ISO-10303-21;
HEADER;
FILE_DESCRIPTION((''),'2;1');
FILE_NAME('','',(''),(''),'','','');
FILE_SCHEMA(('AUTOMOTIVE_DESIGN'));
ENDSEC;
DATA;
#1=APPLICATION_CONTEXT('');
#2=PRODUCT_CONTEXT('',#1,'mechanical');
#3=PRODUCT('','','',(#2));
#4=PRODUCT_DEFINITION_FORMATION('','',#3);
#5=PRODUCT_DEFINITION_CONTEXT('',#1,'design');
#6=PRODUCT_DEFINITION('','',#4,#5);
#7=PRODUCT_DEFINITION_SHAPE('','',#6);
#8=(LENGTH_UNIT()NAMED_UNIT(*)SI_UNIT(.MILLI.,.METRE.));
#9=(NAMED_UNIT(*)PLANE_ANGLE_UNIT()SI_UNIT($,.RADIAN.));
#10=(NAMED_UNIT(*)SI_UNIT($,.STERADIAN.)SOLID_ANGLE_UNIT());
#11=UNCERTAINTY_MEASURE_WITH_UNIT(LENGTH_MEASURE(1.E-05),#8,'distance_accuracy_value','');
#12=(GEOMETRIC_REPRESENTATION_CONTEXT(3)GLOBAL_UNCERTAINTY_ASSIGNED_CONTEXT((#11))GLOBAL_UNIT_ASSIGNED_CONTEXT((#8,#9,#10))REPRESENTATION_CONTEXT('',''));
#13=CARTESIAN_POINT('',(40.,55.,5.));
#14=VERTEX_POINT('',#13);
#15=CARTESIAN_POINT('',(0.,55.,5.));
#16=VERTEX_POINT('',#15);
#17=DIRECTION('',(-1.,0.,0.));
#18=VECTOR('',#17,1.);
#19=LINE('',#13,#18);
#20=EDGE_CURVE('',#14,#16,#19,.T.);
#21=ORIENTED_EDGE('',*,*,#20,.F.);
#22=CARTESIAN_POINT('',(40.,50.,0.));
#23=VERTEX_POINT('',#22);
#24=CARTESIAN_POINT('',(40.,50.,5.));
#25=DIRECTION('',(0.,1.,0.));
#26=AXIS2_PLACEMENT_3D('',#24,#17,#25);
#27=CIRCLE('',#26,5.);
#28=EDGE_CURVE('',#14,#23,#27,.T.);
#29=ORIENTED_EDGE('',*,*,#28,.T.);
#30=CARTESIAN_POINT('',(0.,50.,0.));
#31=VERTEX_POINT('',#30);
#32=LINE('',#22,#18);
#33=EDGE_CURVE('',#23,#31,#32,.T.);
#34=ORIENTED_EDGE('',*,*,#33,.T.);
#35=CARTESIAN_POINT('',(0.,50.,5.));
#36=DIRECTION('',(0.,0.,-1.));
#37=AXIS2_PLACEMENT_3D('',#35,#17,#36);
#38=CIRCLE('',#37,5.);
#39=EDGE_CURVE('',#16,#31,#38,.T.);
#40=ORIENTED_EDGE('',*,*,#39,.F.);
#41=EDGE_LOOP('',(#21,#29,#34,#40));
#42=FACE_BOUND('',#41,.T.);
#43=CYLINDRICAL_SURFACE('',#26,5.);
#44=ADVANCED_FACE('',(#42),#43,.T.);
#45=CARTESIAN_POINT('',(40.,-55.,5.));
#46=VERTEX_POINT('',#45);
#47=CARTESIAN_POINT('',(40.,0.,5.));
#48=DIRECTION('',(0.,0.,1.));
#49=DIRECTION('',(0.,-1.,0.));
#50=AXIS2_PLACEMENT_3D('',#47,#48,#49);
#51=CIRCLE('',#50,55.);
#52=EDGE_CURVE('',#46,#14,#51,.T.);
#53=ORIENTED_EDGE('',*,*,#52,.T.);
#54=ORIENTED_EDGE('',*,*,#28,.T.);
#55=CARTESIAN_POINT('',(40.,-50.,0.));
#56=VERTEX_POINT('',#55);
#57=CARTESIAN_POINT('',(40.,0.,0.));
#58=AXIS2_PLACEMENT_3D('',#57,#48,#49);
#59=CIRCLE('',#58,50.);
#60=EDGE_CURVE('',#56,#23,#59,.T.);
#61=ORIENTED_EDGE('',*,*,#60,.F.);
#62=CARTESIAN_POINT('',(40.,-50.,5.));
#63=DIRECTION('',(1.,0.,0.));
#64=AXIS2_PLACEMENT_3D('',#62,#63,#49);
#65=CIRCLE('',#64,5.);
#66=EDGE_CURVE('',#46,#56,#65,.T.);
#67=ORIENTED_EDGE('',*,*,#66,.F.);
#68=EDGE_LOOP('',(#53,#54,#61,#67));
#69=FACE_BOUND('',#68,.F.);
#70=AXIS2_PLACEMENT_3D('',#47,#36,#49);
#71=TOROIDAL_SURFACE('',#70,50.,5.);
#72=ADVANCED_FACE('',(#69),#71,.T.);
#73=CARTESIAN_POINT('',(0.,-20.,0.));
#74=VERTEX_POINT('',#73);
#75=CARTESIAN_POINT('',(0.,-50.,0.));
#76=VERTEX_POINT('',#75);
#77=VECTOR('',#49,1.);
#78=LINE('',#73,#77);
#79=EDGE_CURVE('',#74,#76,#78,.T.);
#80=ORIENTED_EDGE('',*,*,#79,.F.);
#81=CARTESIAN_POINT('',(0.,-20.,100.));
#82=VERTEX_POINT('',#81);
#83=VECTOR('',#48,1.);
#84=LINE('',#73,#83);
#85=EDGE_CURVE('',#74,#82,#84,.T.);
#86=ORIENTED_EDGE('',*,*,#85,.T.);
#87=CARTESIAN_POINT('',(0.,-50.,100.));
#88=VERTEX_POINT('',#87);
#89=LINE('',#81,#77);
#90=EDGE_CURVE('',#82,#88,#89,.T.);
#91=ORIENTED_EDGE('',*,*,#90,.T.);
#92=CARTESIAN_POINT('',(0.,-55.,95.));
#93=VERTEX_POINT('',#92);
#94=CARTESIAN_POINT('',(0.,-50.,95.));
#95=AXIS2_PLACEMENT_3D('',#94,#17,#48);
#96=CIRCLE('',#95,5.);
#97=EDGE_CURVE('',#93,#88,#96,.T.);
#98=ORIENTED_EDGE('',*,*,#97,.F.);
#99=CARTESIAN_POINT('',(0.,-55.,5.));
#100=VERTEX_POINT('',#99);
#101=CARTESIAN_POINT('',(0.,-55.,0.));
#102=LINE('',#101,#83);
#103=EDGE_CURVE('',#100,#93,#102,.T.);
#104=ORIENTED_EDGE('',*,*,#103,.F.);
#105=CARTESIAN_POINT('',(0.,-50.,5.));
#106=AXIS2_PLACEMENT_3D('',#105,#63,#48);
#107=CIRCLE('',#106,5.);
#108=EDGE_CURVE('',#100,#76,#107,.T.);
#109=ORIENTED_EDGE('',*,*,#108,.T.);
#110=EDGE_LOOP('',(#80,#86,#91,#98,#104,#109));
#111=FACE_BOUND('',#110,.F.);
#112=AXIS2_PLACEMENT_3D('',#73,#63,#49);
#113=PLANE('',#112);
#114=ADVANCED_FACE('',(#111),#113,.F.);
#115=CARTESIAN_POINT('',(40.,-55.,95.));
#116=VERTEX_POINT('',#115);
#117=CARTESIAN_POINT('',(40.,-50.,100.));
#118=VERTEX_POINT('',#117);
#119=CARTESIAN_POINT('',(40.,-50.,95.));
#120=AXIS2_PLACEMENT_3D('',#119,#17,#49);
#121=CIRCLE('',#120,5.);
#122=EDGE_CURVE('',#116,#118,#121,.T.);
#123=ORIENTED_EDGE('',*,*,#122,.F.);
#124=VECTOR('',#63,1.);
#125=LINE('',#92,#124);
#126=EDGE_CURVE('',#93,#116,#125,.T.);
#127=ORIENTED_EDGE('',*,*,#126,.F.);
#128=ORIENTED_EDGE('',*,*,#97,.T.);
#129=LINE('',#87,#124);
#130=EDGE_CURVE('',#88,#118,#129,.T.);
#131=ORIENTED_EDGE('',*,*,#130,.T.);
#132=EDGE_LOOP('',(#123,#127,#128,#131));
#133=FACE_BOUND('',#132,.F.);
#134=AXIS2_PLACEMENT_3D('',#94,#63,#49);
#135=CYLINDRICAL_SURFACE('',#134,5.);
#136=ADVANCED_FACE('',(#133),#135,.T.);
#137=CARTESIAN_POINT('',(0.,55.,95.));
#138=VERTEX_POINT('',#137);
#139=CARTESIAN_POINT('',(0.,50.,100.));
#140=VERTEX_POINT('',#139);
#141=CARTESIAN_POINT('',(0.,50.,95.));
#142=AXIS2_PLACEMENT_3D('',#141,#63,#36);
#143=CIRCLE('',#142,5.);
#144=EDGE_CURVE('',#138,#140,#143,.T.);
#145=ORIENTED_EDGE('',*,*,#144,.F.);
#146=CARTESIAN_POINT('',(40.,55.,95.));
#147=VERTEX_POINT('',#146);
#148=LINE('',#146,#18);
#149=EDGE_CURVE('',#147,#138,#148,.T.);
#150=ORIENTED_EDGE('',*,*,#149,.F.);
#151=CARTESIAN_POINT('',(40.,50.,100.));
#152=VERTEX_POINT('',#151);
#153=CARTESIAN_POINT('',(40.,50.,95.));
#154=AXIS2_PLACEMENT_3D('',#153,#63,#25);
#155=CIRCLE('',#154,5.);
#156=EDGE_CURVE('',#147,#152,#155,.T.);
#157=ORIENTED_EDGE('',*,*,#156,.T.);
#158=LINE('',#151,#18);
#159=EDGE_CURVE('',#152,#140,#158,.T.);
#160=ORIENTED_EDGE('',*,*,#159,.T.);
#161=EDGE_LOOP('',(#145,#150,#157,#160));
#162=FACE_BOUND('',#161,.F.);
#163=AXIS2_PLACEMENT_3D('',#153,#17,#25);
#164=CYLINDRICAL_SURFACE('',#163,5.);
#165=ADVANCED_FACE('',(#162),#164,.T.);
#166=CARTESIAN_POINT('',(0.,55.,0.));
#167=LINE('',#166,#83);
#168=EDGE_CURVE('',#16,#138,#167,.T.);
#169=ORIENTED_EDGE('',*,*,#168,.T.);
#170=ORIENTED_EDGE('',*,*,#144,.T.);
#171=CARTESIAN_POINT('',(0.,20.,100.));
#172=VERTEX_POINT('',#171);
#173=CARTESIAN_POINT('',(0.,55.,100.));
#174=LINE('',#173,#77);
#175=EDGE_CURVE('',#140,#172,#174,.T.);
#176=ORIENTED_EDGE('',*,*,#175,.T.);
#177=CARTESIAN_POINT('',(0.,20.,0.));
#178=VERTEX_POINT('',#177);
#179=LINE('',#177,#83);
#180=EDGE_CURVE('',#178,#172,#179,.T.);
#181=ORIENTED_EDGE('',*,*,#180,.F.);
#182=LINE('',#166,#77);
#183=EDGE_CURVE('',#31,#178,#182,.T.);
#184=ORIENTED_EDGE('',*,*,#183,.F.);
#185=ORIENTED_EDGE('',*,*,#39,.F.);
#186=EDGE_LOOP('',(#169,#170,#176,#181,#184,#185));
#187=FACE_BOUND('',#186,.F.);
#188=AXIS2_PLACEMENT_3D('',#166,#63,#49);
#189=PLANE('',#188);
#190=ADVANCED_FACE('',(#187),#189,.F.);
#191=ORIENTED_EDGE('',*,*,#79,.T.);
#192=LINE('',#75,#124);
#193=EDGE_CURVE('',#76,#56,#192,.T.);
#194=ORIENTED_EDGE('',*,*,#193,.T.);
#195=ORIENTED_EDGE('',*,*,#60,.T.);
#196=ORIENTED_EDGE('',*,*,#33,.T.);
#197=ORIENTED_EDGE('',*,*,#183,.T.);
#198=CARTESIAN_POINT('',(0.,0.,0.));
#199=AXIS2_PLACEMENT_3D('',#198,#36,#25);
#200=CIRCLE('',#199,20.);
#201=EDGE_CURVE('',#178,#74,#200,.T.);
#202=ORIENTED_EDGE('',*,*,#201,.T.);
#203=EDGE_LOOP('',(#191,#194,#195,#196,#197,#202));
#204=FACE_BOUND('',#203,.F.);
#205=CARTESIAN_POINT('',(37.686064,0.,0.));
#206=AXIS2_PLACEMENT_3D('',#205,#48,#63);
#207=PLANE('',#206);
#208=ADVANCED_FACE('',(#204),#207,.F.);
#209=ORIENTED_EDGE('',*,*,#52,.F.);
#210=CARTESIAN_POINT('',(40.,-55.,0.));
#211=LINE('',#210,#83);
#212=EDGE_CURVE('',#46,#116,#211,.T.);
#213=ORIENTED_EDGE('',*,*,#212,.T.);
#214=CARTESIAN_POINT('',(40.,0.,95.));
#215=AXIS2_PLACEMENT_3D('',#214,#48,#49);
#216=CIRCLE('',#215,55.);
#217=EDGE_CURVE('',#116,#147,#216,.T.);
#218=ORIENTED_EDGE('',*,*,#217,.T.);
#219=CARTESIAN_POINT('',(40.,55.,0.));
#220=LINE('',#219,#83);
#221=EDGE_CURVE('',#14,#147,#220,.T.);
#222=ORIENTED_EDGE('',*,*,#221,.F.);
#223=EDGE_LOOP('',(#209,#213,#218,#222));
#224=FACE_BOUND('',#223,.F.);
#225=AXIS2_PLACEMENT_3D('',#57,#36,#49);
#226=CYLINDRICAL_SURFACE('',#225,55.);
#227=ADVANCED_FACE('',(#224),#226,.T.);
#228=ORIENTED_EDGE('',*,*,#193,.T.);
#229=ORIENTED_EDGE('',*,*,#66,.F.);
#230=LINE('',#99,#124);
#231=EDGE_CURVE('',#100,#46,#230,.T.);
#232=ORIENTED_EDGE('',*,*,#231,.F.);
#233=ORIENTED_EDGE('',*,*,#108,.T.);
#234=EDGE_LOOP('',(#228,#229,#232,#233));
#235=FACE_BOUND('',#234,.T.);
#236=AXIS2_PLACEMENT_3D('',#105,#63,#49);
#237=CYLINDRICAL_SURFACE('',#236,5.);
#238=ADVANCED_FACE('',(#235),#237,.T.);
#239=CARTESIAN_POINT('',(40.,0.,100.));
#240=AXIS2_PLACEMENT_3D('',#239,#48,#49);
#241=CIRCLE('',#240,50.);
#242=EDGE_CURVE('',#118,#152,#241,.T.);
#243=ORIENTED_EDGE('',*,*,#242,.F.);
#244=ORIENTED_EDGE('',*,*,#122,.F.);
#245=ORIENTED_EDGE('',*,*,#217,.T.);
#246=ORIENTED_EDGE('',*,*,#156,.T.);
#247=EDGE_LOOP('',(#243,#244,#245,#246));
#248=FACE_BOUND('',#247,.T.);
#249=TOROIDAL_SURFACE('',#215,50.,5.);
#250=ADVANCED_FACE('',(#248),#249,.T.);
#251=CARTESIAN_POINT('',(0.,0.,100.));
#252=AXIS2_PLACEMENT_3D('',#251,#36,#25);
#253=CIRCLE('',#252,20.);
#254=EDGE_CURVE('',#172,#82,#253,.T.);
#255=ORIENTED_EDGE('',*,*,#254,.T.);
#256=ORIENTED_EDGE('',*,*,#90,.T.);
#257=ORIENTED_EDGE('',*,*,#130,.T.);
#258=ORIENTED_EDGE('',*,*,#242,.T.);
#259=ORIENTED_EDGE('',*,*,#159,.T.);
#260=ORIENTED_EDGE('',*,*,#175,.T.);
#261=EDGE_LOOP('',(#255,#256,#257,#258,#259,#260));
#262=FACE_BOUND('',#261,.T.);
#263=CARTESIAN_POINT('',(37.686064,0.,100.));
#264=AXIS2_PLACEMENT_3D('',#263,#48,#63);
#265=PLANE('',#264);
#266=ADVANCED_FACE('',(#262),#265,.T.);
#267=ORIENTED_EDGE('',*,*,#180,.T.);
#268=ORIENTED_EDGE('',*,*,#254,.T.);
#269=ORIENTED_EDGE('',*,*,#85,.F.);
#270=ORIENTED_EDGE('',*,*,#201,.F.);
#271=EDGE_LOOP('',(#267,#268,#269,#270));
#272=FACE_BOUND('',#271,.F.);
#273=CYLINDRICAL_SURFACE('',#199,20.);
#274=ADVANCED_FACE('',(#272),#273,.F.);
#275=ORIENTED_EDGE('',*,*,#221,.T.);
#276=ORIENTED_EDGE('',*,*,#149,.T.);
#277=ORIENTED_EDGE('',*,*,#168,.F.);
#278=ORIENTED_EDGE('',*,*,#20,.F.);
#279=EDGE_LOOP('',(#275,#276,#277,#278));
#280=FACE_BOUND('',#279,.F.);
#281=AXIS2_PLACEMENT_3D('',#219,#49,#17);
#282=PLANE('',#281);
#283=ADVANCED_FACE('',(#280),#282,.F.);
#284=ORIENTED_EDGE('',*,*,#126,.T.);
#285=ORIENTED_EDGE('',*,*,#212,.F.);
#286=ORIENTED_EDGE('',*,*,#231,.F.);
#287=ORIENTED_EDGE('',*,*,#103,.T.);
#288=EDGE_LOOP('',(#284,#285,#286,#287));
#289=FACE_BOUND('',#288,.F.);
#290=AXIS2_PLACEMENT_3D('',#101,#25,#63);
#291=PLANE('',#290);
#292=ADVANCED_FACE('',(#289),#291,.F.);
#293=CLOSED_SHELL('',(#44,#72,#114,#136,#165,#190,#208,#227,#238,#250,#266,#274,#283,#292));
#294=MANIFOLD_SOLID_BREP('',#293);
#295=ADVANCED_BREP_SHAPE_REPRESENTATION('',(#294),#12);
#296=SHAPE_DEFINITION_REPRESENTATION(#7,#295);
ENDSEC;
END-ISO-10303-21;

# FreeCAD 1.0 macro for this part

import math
import FreeCAD as App
import Part
import Sketcher

V = App.Vector


def edges_at(feature, points):
    """Names of the edges that pass closest to the given points."""
    edges = feature.Shape.Edges
    near = lambda p: min(range(len(edges)), key=lambda i: edges[i].distToShape(Part.Vertex(*p))[0])
    return sorted({f"Edge{near(p) + 1}" for p in points})

doc = App.newDocument("Part")
body = doc.addObject("PartDesign::Body", "Body")

# Sketch on XY plane
sketch1 = doc.addObject("Sketcher::SketchObject", "Sketch")
body.addObject(sketch1)
sketch1.AttachmentSupport = (doc.XY_Plane, [""])
sketch1.MapMode = "FlatFace"
sketch1.addGeometry(Part.ArcOfCircle(Part.Circle(V(0, 0, 0), V(0, 0, 1), 20), math.radians(-90), math.radians(90)), False)
sketch1.addGeometry(Part.LineSegment(V(0, -20, 0), V(0, -55, 0)), False)
sketch1.addGeometry(Part.LineSegment(V(0, -55, 0), V(40, -55, 0)), False)
sketch1.addGeometry(Part.ArcOfCircle(Part.Circle(V(40, 0, 0), V(0, 0, 1), 55), math.radians(-90), math.radians(90)), False)
sketch1.addGeometry(Part.LineSegment(V(40, 55, 0), V(0, 55, 0)), False)
sketch1.addGeometry(Part.LineSegment(V(0, 55, 0), V(0, 20, 0)), False)
sketch1.addConstraint(Sketcher.Constraint("Coincident", 0, 1, 1, 1))
sketch1.addConstraint(Sketcher.Constraint("Coincident", 1, 2, 2, 1))
sketch1.addConstraint(Sketcher.Constraint("Tangent", 2, 2, 3, 1))
sketch1.addConstraint(Sketcher.Constraint("Tangent", 3, 2, 4, 1))
sketch1.addConstraint(Sketcher.Constraint("Coincident", 4, 2, 5, 1))
sketch1.addConstraint(Sketcher.Constraint("Coincident", 5, 2, 0, 2))
sketch1.addConstraint(Sketcher.Constraint("Vertical", 1))
sketch1.addConstraint(Sketcher.Constraint("Horizontal", 2))
sketch1.addConstraint(Sketcher.Constraint("Horizontal", 4))
sketch1.addConstraint(Sketcher.Constraint("Vertical", 5))
sketch1.addConstraint(Sketcher.Constraint("Coincident", 0, 3, -1, 1))
sketch1.addConstraint(Sketcher.Constraint("Symmetric", 1, 2, 4, 2, -1, 1))
sketch1.addConstraint(Sketcher.Constraint("PointOnObject", 0, 1, -2))
sketch1.addConstraint(Sketcher.Constraint("Radius", 0, 20.0))
sketch1.addConstraint(Sketcher.Constraint("Radius", 3, 55.0))
sketch1.addConstraint(Sketcher.Constraint("DistanceX", 2, 1, 2, 2, 40.0))
pad1 = doc.addObject("PartDesign::Pad", "Pad")
body.addObject(pad1)
pad1.Profile = sketch1
pad1.Length = 100
doc.recompute()

fillet = doc.addObject("PartDesign::Fillet", "Fillet")
body.addObject(fillet)
fillet.Base = (pad1, edges_at(pad1, [(95, 0, 100), (95, 0, 0)]))
fillet.Radius = 5

doc.recompute()
